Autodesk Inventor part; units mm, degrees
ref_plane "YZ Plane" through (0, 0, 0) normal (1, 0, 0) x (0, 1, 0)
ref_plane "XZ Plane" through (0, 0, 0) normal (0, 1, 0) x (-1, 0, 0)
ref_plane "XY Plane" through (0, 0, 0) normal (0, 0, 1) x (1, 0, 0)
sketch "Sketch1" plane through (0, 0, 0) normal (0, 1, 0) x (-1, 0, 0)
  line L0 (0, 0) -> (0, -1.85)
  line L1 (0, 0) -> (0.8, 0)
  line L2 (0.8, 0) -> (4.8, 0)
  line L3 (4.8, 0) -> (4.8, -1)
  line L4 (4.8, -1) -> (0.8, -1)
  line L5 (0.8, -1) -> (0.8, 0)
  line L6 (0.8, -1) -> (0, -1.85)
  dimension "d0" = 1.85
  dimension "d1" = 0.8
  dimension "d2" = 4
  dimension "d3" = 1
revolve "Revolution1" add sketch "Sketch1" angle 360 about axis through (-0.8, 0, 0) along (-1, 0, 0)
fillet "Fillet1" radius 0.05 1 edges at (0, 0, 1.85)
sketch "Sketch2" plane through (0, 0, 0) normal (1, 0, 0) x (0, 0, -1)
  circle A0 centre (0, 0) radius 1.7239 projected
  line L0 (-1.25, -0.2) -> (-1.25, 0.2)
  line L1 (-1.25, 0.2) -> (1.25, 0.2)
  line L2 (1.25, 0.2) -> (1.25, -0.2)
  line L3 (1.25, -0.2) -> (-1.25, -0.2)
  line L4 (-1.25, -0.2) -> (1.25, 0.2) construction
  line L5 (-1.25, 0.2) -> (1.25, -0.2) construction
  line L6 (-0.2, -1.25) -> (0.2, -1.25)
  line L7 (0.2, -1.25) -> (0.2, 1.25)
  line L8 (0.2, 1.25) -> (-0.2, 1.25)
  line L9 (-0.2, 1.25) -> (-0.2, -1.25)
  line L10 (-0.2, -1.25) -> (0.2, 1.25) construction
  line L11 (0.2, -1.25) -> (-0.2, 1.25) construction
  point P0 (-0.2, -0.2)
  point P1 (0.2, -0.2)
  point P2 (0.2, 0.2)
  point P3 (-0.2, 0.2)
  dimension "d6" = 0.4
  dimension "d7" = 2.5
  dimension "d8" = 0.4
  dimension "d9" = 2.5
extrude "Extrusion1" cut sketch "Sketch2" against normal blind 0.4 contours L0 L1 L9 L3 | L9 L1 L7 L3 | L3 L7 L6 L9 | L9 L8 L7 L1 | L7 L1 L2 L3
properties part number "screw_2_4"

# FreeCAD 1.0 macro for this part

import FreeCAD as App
import Part
import Sketcher

V = App.Vector
Q = App.Units.Quantity


def edges_at(feature, points):
    """Names of the edges that pass closest to the given points."""
    edges = feature.Shape.Edges
    near = lambda p: min(range(len(edges)), key=lambda i: edges[i].distToShape(Part.Vertex(*p))[0])
    return sorted({f"Edge{near(p) + 1}" for p in points})

doc = App.newDocument("Part")
params = doc.addObject("Spreadsheet::Sheet", "Params")
for row, (alias, value) in enumerate([
    ("sketch1_width", "4 mm"),
    ("sketch1_height", "1 mm"),
    ("sketch1_height2", "1.85 mm"),
    ("revolution_angle", "360 deg"),
    ("fillet_radius", "0.05 mm"),
    ("sketch2_width", "0.4 mm"),
    ("pocket1_length", "0.4 mm"),
], start=1):
    params.set(f"A{row}", alias)
    params.set(f"B{row}", "=" + value)
    params.setAlias(f"B{row}", alias)

body = doc.addObject("PartDesign::Body", "Body")

sketch1 = body.newObject("Sketcher::SketchObject", "Sketch")
sketch1.AttachmentSupport = (doc.getObject("XZ_Plane"), [""])
sketch1.MapMode = "FlatFace"
sketch1.addGeometry([
    Part.LineSegment(V(0, 0, 0), V(0, -1.85, 0)),
    Part.LineSegment(V(0, -1.85, 0), V(-0.8, -1, 0)),
    Part.LineSegment(V(-0.8, -1, 0), V(-4.8, -1, 0)),
    Part.LineSegment(V(-4.8, -1, 0), V(-4.8, 0, 0)),
    Part.LineSegment(V(-4.8, 0, 0), V(0, 0, 0)),
], False)
sketch1.addConstraint([
    Sketcher.Constraint("Coincident", 0, 2, 1, 1),
    Sketcher.Constraint("Coincident", 1, 2, 2, 1),
    Sketcher.Constraint("Coincident", 2, 2, 3, 1),
    Sketcher.Constraint("Coincident", 3, 2, 4, 1),
    Sketcher.Constraint("Coincident", 4, 2, 0, 1),
    Sketcher.Constraint("Vertical", 0),
    Sketcher.Constraint("Horizontal", 2),
    Sketcher.Constraint("Vertical", 3),
    Sketcher.Constraint("Horizontal", 4),
    Sketcher.Constraint("Coincident", 4, 2, -1, 1),
    Sketcher.Constraint("DistanceX", 2, 2, 2, 1, Q("4 mm")),
    Sketcher.Constraint("DistanceY", 3, 1, 3, 2, Q("1 mm")),
    Sketcher.Constraint("DistanceY", 0, 2, 0, 1, Q("1.85 mm")),
    Sketcher.Constraint("DistanceX", 1, 2, -1, 1, Q("0.8 mm")),
])
sketch1.setExpression("Constraints[10]", "Params.sketch1_width")
sketch1.setExpression("Constraints[11]", "Params.sketch1_height")
sketch1.setExpression("Constraints[12]", "Params.sketch1_height2")
revolution = body.newObject("PartDesign::Revolution", "Revolution")
revolution.Profile = sketch1
revolution.ReferenceAxis = (sketch1, ["H_Axis"])
revolution.setExpression("Angle", "Params.revolution_angle")
doc.recompute()

fillet = body.newObject("PartDesign::Fillet", "Fillet")
fillet.Base = (revolution, edges_at(revolution, [(0, 0, 1.85)]))
fillet.setExpression("Radius", "Params.fillet_radius")

sketch2 = body.newObject("Sketcher::SketchObject", "Sketch001")
sketch2.AttachmentSupport = (doc.getObject("YZ_Plane"), [""])
sketch2.MapMode = "FlatFace"
sketch2.addGeometry([
    Part.LineSegment(V(0.2, 1.25, 0), V(-0.2, 1.25, 0)),
    Part.LineSegment(V(-0.2, 1.25, 0), V(-0.2, 0.2, 0)),
    Part.LineSegment(V(-0.2, 0.2, 0), V(-1.25, 0.2, 0)),
    Part.LineSegment(V(-1.25, 0.2, 0), V(-1.25, -0.2, 0)),
    Part.LineSegment(V(-1.25, -0.2, 0), V(-0.2, -0.2, 0)),
    Part.LineSegment(V(-0.2, -0.2, 0), V(-0.2, -1.25, 0)),
    Part.LineSegment(V(-0.2, -1.25, 0), V(0.2, -1.25, 0)),
    Part.LineSegment(V(0.2, -1.25, 0), V(0.2, -0.2, 0)),
    Part.LineSegment(V(0.2, -0.2, 0), V(1.25, -0.2, 0)),
    Part.LineSegment(V(1.25, -0.2, 0), V(1.25, 0.2, 0)),
    Part.LineSegment(V(1.25, 0.2, 0), V(0.2, 0.2, 0)),
    Part.LineSegment(V(0.2, 0.2, 0), V(0.2, 1.25, 0)),
], False)
sketch2.addConstraint([
    Sketcher.Constraint("Coincident", 0, 2, 1, 1),
    Sketcher.Constraint("Coincident", 1, 2, 2, 1),
    Sketcher.Constraint("Coincident", 2, 2, 3, 1),
    Sketcher.Constraint("Coincident", 3, 2, 4, 1),
    Sketcher.Constraint("Coincident", 4, 2, 5, 1),
    Sketcher.Constraint("Coincident", 5, 2, 6, 1),
    Sketcher.Constraint("Coincident", 6, 2, 7, 1),
    Sketcher.Constraint("Coincident", 7, 2, 8, 1),
    Sketcher.Constraint("Coincident", 8, 2, 9, 1),
    Sketcher.Constraint("Coincident", 9, 2, 10, 1),
    Sketcher.Constraint("Coincident", 10, 2, 11, 1),
    Sketcher.Constraint("Coincident", 11, 2, 0, 1),
    Sketcher.Constraint("Horizontal", 0),
    Sketcher.Constraint("Vertical", 1),
    Sketcher.Constraint("Horizontal", 2),
    Sketcher.Constraint("Vertical", 3),
    Sketcher.Constraint("Horizontal", 4),
    Sketcher.Constraint("Vertical", 5),
    Sketcher.Constraint("Horizontal", 6),
    Sketcher.Constraint("Vertical", 7),
    Sketcher.Constraint("Horizontal", 8),
    Sketcher.Constraint("Vertical", 9),
    Sketcher.Constraint("Horizontal", 10),
    Sketcher.Constraint("Vertical", 11),
    Sketcher.Constraint("Symmetric", 0, 2, 6, 2, -1, 1),
    Sketcher.Constraint("Symmetric", 2, 2, 8, 2, -1, 1),
    Sketcher.Constraint("Symmetric", 4, 2, 10, 2, -1, 1),
    Sketcher.Constraint("Symmetric", 4, 2, 7, 2, -2),
    Sketcher.Constraint("Equal", 10, 1),
    Sketcher.Constraint("Equal", 6, 3),
    Sketcher.Constraint("DistanceX", 0, 2, 0, 1, Q("0.4 mm")),
    Sketcher.Constraint("DistanceY", 5, 2, 0, 2, Q("2.5 mm")),
])
sketch2.setExpression("Constraints[30]", "Params.sketch2_width")
pocket1 = body.newObject("PartDesign::Pocket", "Pocket")
pocket1.Profile = sketch2
pocket1.setExpression("Length", "Params.pocket1_length")

doc.recompute()
